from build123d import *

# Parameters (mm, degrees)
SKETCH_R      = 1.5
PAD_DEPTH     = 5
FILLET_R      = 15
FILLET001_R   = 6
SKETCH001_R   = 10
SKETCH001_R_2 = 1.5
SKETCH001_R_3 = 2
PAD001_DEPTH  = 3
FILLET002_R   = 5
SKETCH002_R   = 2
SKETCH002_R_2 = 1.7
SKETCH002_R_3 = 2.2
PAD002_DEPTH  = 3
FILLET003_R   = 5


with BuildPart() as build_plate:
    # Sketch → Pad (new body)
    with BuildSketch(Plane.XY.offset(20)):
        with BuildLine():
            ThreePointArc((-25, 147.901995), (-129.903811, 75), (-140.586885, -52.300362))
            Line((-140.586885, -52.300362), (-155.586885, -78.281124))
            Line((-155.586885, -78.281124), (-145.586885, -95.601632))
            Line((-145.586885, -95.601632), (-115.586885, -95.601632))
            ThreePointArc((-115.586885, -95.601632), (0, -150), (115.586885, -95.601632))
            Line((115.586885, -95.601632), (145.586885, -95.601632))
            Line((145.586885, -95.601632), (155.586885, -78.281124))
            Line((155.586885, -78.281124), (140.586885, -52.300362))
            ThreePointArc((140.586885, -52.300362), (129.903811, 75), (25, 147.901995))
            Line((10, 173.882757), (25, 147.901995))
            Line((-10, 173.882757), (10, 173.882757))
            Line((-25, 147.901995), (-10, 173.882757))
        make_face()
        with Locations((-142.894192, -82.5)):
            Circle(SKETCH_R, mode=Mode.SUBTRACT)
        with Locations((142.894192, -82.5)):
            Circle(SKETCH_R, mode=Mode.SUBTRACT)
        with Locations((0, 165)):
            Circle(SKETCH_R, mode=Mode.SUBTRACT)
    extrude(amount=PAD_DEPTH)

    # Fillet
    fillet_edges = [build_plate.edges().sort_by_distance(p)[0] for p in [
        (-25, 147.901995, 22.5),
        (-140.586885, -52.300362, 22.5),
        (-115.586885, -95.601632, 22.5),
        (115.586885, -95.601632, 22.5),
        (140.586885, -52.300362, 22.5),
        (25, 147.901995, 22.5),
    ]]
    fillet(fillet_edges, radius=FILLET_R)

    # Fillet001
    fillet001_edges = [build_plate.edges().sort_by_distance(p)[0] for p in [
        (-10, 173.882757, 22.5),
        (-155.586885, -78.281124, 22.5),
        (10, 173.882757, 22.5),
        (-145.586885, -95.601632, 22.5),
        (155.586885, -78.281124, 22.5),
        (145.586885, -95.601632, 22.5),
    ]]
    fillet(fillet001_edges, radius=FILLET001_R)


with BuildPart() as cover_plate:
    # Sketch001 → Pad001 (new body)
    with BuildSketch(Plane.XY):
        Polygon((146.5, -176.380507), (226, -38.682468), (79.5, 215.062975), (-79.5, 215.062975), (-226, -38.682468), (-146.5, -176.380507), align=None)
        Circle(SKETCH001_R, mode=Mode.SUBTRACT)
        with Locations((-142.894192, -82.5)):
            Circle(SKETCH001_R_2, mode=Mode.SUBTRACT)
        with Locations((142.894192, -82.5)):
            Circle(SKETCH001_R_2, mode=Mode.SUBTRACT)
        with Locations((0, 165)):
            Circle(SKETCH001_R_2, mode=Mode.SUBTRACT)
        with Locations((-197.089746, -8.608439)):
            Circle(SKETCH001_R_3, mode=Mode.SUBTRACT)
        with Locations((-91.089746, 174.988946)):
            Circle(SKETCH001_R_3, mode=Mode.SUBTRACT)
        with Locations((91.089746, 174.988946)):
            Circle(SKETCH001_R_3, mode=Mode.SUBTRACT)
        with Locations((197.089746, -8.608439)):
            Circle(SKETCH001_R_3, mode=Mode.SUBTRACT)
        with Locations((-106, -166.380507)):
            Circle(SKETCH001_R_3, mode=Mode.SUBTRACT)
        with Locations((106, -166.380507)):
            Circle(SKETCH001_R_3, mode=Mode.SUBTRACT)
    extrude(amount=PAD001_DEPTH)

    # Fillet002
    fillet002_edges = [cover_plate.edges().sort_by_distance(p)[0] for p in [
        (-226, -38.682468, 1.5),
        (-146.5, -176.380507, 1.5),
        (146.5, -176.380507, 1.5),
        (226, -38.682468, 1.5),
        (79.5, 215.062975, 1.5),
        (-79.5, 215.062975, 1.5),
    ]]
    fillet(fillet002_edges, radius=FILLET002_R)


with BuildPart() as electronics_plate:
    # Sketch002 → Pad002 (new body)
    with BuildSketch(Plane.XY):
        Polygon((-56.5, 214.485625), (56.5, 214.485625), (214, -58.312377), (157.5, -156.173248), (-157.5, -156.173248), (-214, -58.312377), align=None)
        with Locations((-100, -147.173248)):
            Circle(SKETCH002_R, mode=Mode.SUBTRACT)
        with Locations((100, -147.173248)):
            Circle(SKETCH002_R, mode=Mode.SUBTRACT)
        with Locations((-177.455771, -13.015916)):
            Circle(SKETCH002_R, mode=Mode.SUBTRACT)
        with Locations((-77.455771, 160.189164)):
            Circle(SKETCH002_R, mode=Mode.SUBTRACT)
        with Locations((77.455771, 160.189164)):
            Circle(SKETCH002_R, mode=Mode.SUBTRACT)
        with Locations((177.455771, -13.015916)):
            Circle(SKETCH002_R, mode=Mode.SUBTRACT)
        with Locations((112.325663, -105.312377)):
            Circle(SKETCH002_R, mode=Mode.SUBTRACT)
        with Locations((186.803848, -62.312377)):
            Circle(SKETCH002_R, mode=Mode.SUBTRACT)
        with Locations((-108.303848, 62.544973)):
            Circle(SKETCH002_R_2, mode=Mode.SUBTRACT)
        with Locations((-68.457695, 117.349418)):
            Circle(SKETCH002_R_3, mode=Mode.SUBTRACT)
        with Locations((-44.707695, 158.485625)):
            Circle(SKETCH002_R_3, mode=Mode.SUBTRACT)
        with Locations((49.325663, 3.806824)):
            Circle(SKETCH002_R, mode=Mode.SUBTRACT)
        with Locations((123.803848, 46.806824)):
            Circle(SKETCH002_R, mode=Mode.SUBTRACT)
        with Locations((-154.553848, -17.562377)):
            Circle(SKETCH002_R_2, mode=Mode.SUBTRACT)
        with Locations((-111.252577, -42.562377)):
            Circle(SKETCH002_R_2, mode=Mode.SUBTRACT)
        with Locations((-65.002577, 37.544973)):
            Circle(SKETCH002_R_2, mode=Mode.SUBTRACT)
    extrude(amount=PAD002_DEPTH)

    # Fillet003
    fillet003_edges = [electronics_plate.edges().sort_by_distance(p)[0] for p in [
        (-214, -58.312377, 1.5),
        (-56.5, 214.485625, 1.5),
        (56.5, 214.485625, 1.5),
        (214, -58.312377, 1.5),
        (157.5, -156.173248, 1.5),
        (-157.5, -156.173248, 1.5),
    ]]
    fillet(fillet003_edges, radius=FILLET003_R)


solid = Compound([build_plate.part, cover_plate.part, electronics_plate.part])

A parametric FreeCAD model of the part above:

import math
import FreeCAD as App
import Part
import Sketcher

V = App.Vector
Q = App.Units.Quantity


def edges_at(feature, points):
    """Names of the edges that pass closest to the given points."""
    edges = feature.Shape.Edges
    near = lambda p: min(range(len(edges)), key=lambda i: edges[i].distToShape(Part.Vertex(*p))[0])
    return sorted({f"Edge{near(p) + 1}" for p in points})

doc = App.newDocument("Part")
body = doc.addObject("PartDesign::Body", "Body")

sketch1 = doc.addObject("Sketcher::SketchObject", "Sketch")
body.addObject(sketch1)
sketch1.AttachmentSupport = (doc.XY_Plane, [""])
sketch1.MapMode = "FlatFace"
sketch1.AttachmentOffset = App.Placement(V(0, 0, 20), App.Rotation())
sketch1.addGeometry(Part.ArcOfCircle(Part.Circle(V(0, 0, 0), V(0, 0, 1), 150), math.radians(100), math.radians(200)), False)
sketch1.addGeometry(Part.LineSegment(V(-140.6, -52.3, 0), V(-155.6, -78.3, 0)), False)
sketch1.addGeometry(Part.LineSegment(V(-155.6, -78.3, 0), V(-145.6, -95.6, 0)), False)
sketch1.addGeometry(Part.LineSegment(V(-145.6, -95.6, 0), V(-115.6, -95.6, 0)), False)
sketch1.addGeometry(Part.ArcOfCircle(Part.Circle(V(0, 0, 0), V(0, 0, 1), 150), math.radians(-140), math.radians(-40)), False)
sketch1.addGeometry(Part.LineSegment(V(115.6, -95.6, 0), V(145.6, -95.6, 0)), False)
sketch1.addGeometry(Part.LineSegment(V(145.6, -95.6, 0), V(155.6, -78.3, 0)), False)
sketch1.addGeometry(Part.LineSegment(V(155.6, -78.3, 0), V(140.6, -52.3, 0)), False)
sketch1.addGeometry(Part.ArcOfCircle(Part.Circle(V(0, 0, 0), V(0, 0, 1), 150), math.radians(-20), math.radians(80)), False)
sketch1.addGeometry(Part.LineSegment(V(25, 147.9, 0), V(10, 173.9, 0)), False)
sketch1.addGeometry(Part.LineSegment(V(10, 173.9, 0), V(-10, 173.9, 0)), False)
sketch1.addGeometry(Part.LineSegment(V(-10, 173.9, 0), V(-25, 147.9, 0)), False)
sketch1.addGeometry(Part.Circle(V(-142.9, -82.5, 0), V(0, 0, 1), 1.5), False)
sketch1.addGeometry(Part.Circle(V(142.9, -82.5, 0), V(0, 0, 1), 1.5), False)
sketch1.addGeometry(Part.Circle(V(0, 165, 0), V(0, 0, 1), 1.5), False)
sketch1.addConstraint(Sketcher.Constraint("Coincident", 0, 2, 1, 1))
sketch1.addConstraint(Sketcher.Constraint("Coincident", 1, 2, 2, 1))
sketch1.addConstraint(Sketcher.Constraint("Coincident", 2, 2, 3, 1))
sketch1.addConstraint(Sketcher.Constraint("Coincident", 3, 2, 4, 1))
sketch1.addConstraint(Sketcher.Constraint("Coincident", 4, 2, 5, 1))
sketch1.addConstraint(Sketcher.Constraint("Coincident", 5, 2, 6, 1))
sketch1.addConstraint(Sketcher.Constraint("Coincident", 6, 2, 7, 1))
sketch1.addConstraint(Sketcher.Constraint("Coincident", 7, 2, 8, 1))
sketch1.addConstraint(Sketcher.Constraint("Coincident", 8, 2, 9, 1))
sketch1.addConstraint(Sketcher.Constraint("Coincident", 9, 2, 10, 1))
sketch1.addConstraint(Sketcher.Constraint("Coincident", 10, 2, 11, 1))
sketch1.addConstraint(Sketcher.Constraint("Coincident", 11, 2, 0, 1))
sketch1.addConstraint(Sketcher.Constraint("Horizontal", 3))
sketch1.addConstraint(Sketcher.Constraint("Horizontal", 5))
sketch1.addConstraint(Sketcher.Constraint("Horizontal", 10))
sketch1.addConstraint(Sketcher.Constraint("Coincident", 0, 3, -1, 1))
sketch1.addConstraint(Sketcher.Constraint("Coincident", 4, 3, -1, 1))
sketch1.addConstraint(Sketcher.Constraint("Coincident", 8, 3, -1, 1))
sketch1.addConstraint(Sketcher.Constraint("Equal", 0, 4))
sketch1.addConstraint(Sketcher.Constraint("Equal", 4, 8))
sketch1.addConstraint(Sketcher.Constraint("Equal", 12, 13))
sketch1.addConstraint(Sketcher.Constraint("Equal", 13, 14))
sketch1.addConstraint(Sketcher.Constraint("Symmetric", 12, 3, 13, 3, -2))
sketch1.addConstraint(Sketcher.Constraint("Symmetric", 2, 2, 5, 2, -2))
sketch1.addConstraint(Sketcher.Constraint("Symmetric", 1, 2, 6, 2, -2))
sketch1.addConstraint(Sketcher.Constraint("PointOnObject", 14, 3, -2))
sketch1.addConstraint(Sketcher.Constraint("Parallel", 1, 6))
sketch1.addConstraint(Sketcher.Constraint("Parallel", 2, 7))
sketch1.addConstraint(Sketcher.Constraint("Parallel", 7, 9))
sketch1.addConstraint(Sketcher.Constraint("Parallel", 6, 11))
sketch1.addConstraint(Sketcher.Constraint("Horizontal", 8, 2, 11, 2))
sketch1.addConstraint(Sketcher.Constraint("Equal", 7, 9))
sketch1.addConstraint(Sketcher.Constraint("Diameter", 12, 3.0))
sketch1.addConstraint(Sketcher.Constraint("Radius", 0, 150.0))
sketch1.addConstraint(Sketcher.Constraint("DistanceX", 3, 1, 3, 2, 30.0))
sketch1.addConstraint(Sketcher.Constraint("DistanceX", 10, 2, 10, 1, 20.0))
sketch1.addConstraint(Sketcher.Constraint("Angle", 1, Q("-120 deg")))
sketch1.addConstraint(Sketcher.Constraint("Distance", 1, 30.0))
sketch1.addConstraint(Sketcher.Constraint("Distance", 2, 20.0))
sketch1.addConstraint(Sketcher.Constraint("DistanceY", -1, 1, 14, 3, 165.0))
sketch1.addConstraint(Sketcher.Constraint("DistanceY", 12, 3, -1, 1, 82.5))
sketch1.addConstraint(Sketcher.Constraint("DistanceX", 12, 3, -1, 1, 142.894192))
pad1 = doc.addObject("PartDesign::Pad", "Pad")
body.addObject(pad1)
pad1.Profile = sketch1
pad1.Length = 5
doc.recompute()

fillet = doc.addObject("PartDesign::Fillet", "Fillet")
body.addObject(fillet)
fillet.Base = (pad1, edges_at(pad1, [
    (-25, 147.902, 22.5),
    (-140.587, -52.3, 22.5),
    (-115.587, -95.602, 22.5),
    (115.587, -95.602, 22.5),
    (140.587, -52.3, 22.5),
    (25, 147.902, 22.5),
]))
fillet.Radius = 15
doc.recompute()

fillet2 = doc.addObject("PartDesign::Fillet", "Fillet001")
body.addObject(fillet2)
fillet2.Base = (fillet, edges_at(fillet, [
    (-10, 173.883, 22.5),
    (-155.587, -78.281, 22.5),
    (10, 173.883, 22.5),
    (-145.587, -95.602, 22.5),
    (155.587, -78.281, 22.5),
    (145.587, -95.602, 22.5),
]))
fillet2.Radius = 6
body2 = doc.addObject("PartDesign::Body", "Body001")

sketch2 = doc.addObject("Sketcher::SketchObject", "Sketch001")
body2.addObject(sketch2)
sketch2.AttachmentSupport = (doc.getObject("XY_Plane001"), [""])
sketch2.MapMode = "FlatFace"
sketch2.addGeometry(Part.LineSegment(V(146.5, -176.4, 0), V(226, -38.7, 0)), False)
sketch2.addGeometry(Part.LineSegment(V(226, -38.7, 0), V(79.5, 215.1, 0)), False)
sketch2.addGeometry(Part.LineSegment(V(79.5, 215.1, 0), V(-79.5, 215.1, 0)), False)
sketch2.addGeometry(Part.LineSegment(V(-79.5, 215.1, 0), V(-226, -38.7, 0)), False)
sketch2.addGeometry(Part.LineSegment(V(-226, -38.7, 0), V(-146.5, -176.4, 0)), False)
sketch2.addGeometry(Part.LineSegment(V(-146.5, -176.4, 0), V(146.5, -176.4, 0)), False)
sketch2.addGeometry(Part.Circle(V(-106, -166.4, 0), V(0, 0, 1), 2), False)
sketch2.addGeometry(Part.Circle(V(-142.9, -82.5, 0), V(0, 0, 1), 1.5), False)
sketch2.addGeometry(Part.Circle(V(-197.1, -8.6, 0), V(0, 0, 1), 2), False)
sketch2.addGeometry(Part.Circle(V(0, 0, 0), V(0, 0, 1), 10), False)
sketch2.addGeometry(Part.Circle(V(106, -166.4, 0), V(0, 0, 1), 2), False)
sketch2.addGeometry(Part.Circle(V(142.9, -82.5, 0), V(0, 0, 1), 1.5), False)
sketch2.addGeometry(Part.Circle(V(197.1, -8.6, 0), V(0, 0, 1), 2), False)
sketch2.addGeometry(Part.Circle(V(-91.1, 175, 0), V(0, 0, 1), 2), False)
sketch2.addGeometry(Part.Circle(V(0, 165, 0), V(0, 0, 1), 1.5), False)
sketch2.addGeometry(Part.Circle(V(91.1, 175, 0), V(0, 0, 1), 2), False)
sketch2.addConstraint(Sketcher.Constraint("Coincident", 0, 2, 1, 1))
sketch2.addConstraint(Sketcher.Constraint("Coincident", 1, 2, 2, 1))
sketch2.addConstraint(Sketcher.Constraint("Coincident", 2, 2, 3, 1))
sketch2.addConstraint(Sketcher.Constraint("Coincident", 3, 2, 4, 1))
sketch2.addConstraint(Sketcher.Constraint("Coincident", 4, 2, 5, 1))
sketch2.addConstraint(Sketcher.Constraint("Coincident", 5, 2, 0, 1))
sketch2.addConstraint(Sketcher.Constraint("Horizontal", 2))
sketch2.addConstraint(Sketcher.Constraint("Horizontal", 5))
sketch2.addConstraint(Sketcher.Constraint("Coincident", 9, 3, -1, 1))
sketch2.addConstraint(Sketcher.Constraint("Equal", 6, 8))
sketch2.addConstraint(Sketcher.Constraint("Equal", 8, 10))
sketch2.addConstraint(Sketcher.Constraint("Equal", 7, 11))
sketch2.addConstraint(Sketcher.Constraint("Equal", 10, 12))
sketch2.addConstraint(Sketcher.Constraint("Equal", 12, 13))
sketch2.addConstraint(Sketcher.Constraint("Equal", 11, 14))
sketch2.addConstraint(Sketcher.Constraint("Equal", 13, 15))
sketch2.addConstraint(Sketcher.Constraint("Symmetric", 6, 3, 10, 3, -2))
sketch2.addConstraint(Sketcher.Constraint("Symmetric", 7, 3, 11, 3, -2))
sketch2.addConstraint(Sketcher.Constraint("Symmetric", 8, 3, 12, 3, -2))
sketch2.addConstraint(Sketcher.Constraint("Symmetric", 13, 3, 15, 3, -2))
sketch2.addConstraint(Sketcher.Constraint("Symmetric", 0, 2, 3, 2, -2))
sketch2.addConstraint(Sketcher.Constraint("PointOnObject", 14, 3, -2))
sketch2.addConstraint(Sketcher.Constraint("Parallel", 0, 3))
sketch2.addConstraint(Sketcher.Constraint("Parallel", 1, 4))
sketch2.addConstraint(Sketcher.Constraint("Equal", 1, 3))
sketch2.addConstraint(Sketcher.Constraint("Diameter", 6, 4.0))
sketch2.addConstraint(Sketcher.Constraint("Diameter", 7, 3.0))
sketch2.addConstraint(Sketcher.Constraint("Diameter", 9, 20.0))
sketch2.addConstraint(Sketcher.Constraint("DistanceX", 2, 2, 2, 1, 159.0))
sketch2.addConstraint(Sketcher.Constraint("DistanceX", 5, 1, 5, 2, 293.0))
sketch2.addConstraint(Sketcher.Constraint("Angle", 0, Q("60 deg")))
sketch2.addConstraint(Sketcher.Constraint("Distance", 0, 159.0))
sketch2.addConstraint(Sketcher.Constraint("DistanceX", 6, 3, -1, 1, 106.0))
sketch2.addConstraint(Sketcher.Constraint("DistanceY", -1, 1, 14, 3, 165.0))
sketch2.addConstraint(Sketcher.Constraint("DistanceX", 8, 3, 13, 3, 106.0))
sketch2.addConstraint(Sketcher.Constraint("DistanceY", 4, 2, 6, 3, 10.0))
sketch2.addConstraint(Sketcher.Constraint("DistanceY", 7, 3, -1, 1, 82.5))
sketch2.addConstraint(Sketcher.Constraint("DistanceX", 7, 3, -1, 1, 142.894192))
sketch2.addConstraint(Sketcher.Constraint("DistanceY", 8, 3, -1, 1, 8.608439))
sketch2.addConstraint(Sketcher.Constraint("DistanceX", 13, 3, 12, 3, 288.179492))
sketch2.addConstraint(Sketcher.Constraint("DistanceY", 0, 2, 12, 3, 30.074029))
sketch2.addConstraint(Sketcher.Constraint("DistanceY", 15, 3, 1, 2, 40.074029))
pad2 = doc.addObject("PartDesign::Pad", "Pad001")
body2.addObject(pad2)
pad2.Profile = sketch2
pad2.Length = 3
doc.recompute()

fillet3 = doc.addObject("PartDesign::Fillet", "Fillet002")
body2.addObject(fillet3)
fillet3.Base = (pad2, edges_at(pad2, [
    (-226, -38.682, 1.5),
    (-146.5, -176.381, 1.5),
    (146.5, -176.381, 1.5),
    (226, -38.682, 1.5),
    (79.5, 215.063, 1.5),
    (-79.5, 215.063, 1.5),
]))
fillet3.Radius = 5
body3 = doc.addObject("PartDesign::Body", "Body002")

sketch3 = doc.addObject("Sketcher::SketchObject", "Sketch002")
body3.addObject(sketch3)
sketch3.AttachmentSupport = (doc.getObject("XY_Plane002"), [""])
sketch3.MapMode = "FlatFace"
sketch3.addGeometry(Part.LineSegment(V(56.5, 214.5, 0), V(-56.5, 214.5, 0)), False)
sketch3.addGeometry(Part.LineSegment(V(-56.5, 214.5, 0), V(-214, -58.3, 0)), False)
sketch3.addGeometry(Part.LineSegment(V(-214, -58.3, 0), V(-157.5, -156.2, 0)), False)
sketch3.addGeometry(Part.LineSegment(V(-157.5, -156.2, 0), V(157.5, -156.2, 0)), False)
sketch3.addGeometry(Part.LineSegment(V(157.5, -156.2, 0), V(214, -58.3, 0)), False)
sketch3.addGeometry(Part.LineSegment(V(214, -58.3, 0), V(56.5, 214.5, 0)), False)
sketch3.addGeometry(Part.Circle(V(100, -147.2, 0), V(0, 0, 1), 2), False)
sketch3.addGeometry(Part.Circle(V(112.3, -105.3, 0), V(0, 0, 1), 2), False)
sketch3.addGeometry(Part.Circle(V(186.8, -62.3, 0), V(0, 0, 1), 2), False)
sketch3.addGeometry(Part.Circle(V(177.5, -13, 0), V(0, 0, 1), 2), False)
sketch3.addGeometry(Part.Circle(V(49.3, 3.8, 0), V(0, 0, 1), 2), False)
sketch3.addGeometry(Part.Circle(V(-100, -147.2, 0), V(0, 0, 1), 2), False)
sketch3.addGeometry(Part.Circle(V(-111.3, -42.6, 0), V(0, 0, 1), 1.7), False)
sketch3.addGeometry(Part.Circle(V(-154.6, -17.6, 0), V(0, 0, 1), 1.7), False)
sketch3.addGeometry(Part.Circle(V(-177.5, -13, 0), V(0, 0, 1), 2), False)
sketch3.addGeometry(Part.Circle(V(123.8, 46.8, 0), V(0, 0, 1), 2), False)
sketch3.addGeometry(Part.Circle(V(77.5, 160.2, 0), V(0, 0, 1), 2), False)
sketch3.addGeometry(Part.Circle(V(-65, 37.5, 0), V(0, 0, 1), 1.7), False)
sketch3.addGeometry(Part.Circle(V(-108.3, 62.5, 0), V(0, 0, 1), 1.7), False)
sketch3.addGeometry(Part.Circle(V(-68.5, 117.3, 0), V(0, 0, 1), 2.2), False)
sketch3.addGeometry(Part.Circle(V(-44.7, 158.5, 0), V(0, 0, 1), 2.2), False)
sketch3.addGeometry(Part.Circle(V(-77.5, 160.2, 0), V(0, 0, 1), 2), False)
sketch3.addConstraint(Sketcher.Constraint("Coincident", 0, 2, 1, 1))
sketch3.addConstraint(Sketcher.Constraint("Coincident", 1, 2, 2, 1))
sketch3.addConstraint(Sketcher.Constraint("Coincident", 2, 2, 3, 1))
sketch3.addConstraint(Sketcher.Constraint("Coincident", 3, 2, 4, 1))
sketch3.addConstraint(Sketcher.Constraint("Coincident", 4, 2, 5, 1))
sketch3.addConstraint(Sketcher.Constraint("Coincident", 5, 2, 0, 1))
sketch3.addConstraint(Sketcher.Constraint("Horizontal", 0))
sketch3.addConstraint(Sketcher.Constraint("Horizontal", 3))
sketch3.addConstraint(Sketcher.Constraint("Equal", 6, 7))
sketch3.addConstraint(Sketcher.Constraint("Equal", 7, 8))
sketch3.addConstraint(Sketcher.Constraint("Equal", 8, 9))
sketch3.addConstraint(Sketcher.Constraint("Equal", 9, 10))
sketch3.addConstraint(Sketcher.Constraint("Equal", 10, 11))
sketch3.addConstraint(Sketcher.Constraint("Equal", 12, 13))
sketch3.addConstraint(Sketcher.Constraint("Equal", 11, 14))
sketch3.addConstraint(Sketcher.Constraint("Equal", 14, 15))
sketch3.addConstraint(Sketcher.Constraint("Equal", 15, 16))
sketch3.addConstraint(Sketcher.Constraint("Equal", 13, 17))
sketch3.addConstraint(Sketcher.Constraint("Equal", 17, 18))
sketch3.addConstraint(Sketcher.Constraint("Equal", 19, 20))
sketch3.addConstraint(Sketcher.Constraint("Equal", 16, 21))
sketch3.addConstraint(Sketcher.Constraint("Symmetric", 6, 3, 11, 3, -2))
sketch3.addConstraint(Sketcher.Constraint("Symmetric", 9, 3, 14, 3, -2))
sketch3.addConstraint(Sketcher.Constraint("Symmetric", 16, 3, 21, 3, -2))
sketch3.addConstraint(Sketcher.Constraint("Symmetric", 1, 2, 4, 2, -2))
sketch3.addConstraint(Sketcher.Constraint("Parallel", 1, 4))
sketch3.addConstraint(Sketcher.Constraint("Parallel", 2, 5))
sketch3.addConstraint(Sketcher.Constraint("Equal", 2, 4))
sketch3.addConstraint(Sketcher.Constraint("Diameter", 6, 4.0))
sketch3.addConstraint(Sketcher.Constraint("Diameter", 12, 3.4))
sketch3.addConstraint(Sketcher.Constraint("Diameter", 19, 4.4))
sketch3.addConstraint(Sketcher.Constraint("DistanceX", 0, 2, 0, 1, 113.0))
sketch3.addConstraint(Sketcher.Constraint("DistanceX", 3, 1, 3, 2, 315.0))
sketch3.addConstraint(Sketcher.Constraint("Angle", 1, Q("-120 deg")))
sketch3.addConstraint(Sketcher.Constraint("Distance", 1, 315.0))
sketch3.addConstraint(Sketcher.Constraint("DistanceX", -1, 1, 6, 3, 100.0))
sketch3.addConstraint(Sketcher.Constraint("DistanceY", 7, 3, 8, 3, 43.0))
sketch3.addConstraint(Sketcher.Constraint("DistanceX", 10, 3, 7, 3, 63.0))
sketch3.addConstraint(Sketcher.Constraint("DistanceY", 12, 3, 13, 3, 25.0))
sketch3.addConstraint(Sketcher.Constraint("DistanceY", 10, 3, 15, 3, 43.0))
sketch3.addConstraint(Sketcher.Constraint("DistanceX", 15, 3, 8, 3, 63.0))
sketch3.addConstraint(Sketcher.Constraint("DistanceX", 16, 3, 9, 3, 100.0))
sketch3.addConstraint(Sketcher.Constraint("DistanceY", 17, 3, 18, 3, 25.0))
sketch3.addConstraint(Sketcher.Constraint("DistanceY", 20, 3, 0, 2, 56.0))
sketch3.addConstraint(Sketcher.Constraint("DistanceY", 2, 2, 11, 3, 9.0))
sketch3.addConstraint(Sketcher.Constraint("DistanceY", 8, 3, 4, 2, 4.0))
sketch3.addConstraint(Sketcher.Constraint("DistanceY", 7, 3, 12, 3, 62.75))
sketch3.addConstraint(Sketcher.Constraint("DistanceX", 12, 3, 17, 3, 46.25))
sketch3.addConstraint(Sketcher.Constraint("DistanceX", 13, 3, 18, 3, 46.25))
sketch3.addConstraint(Sketcher.Constraint("DistanceX", 19, 3, 20, 3, 23.75))
sketch3.addConstraint(Sketcher.Constraint("DistanceY", 7, 3, 10, 3, 109.119201))
sketch3.addConstraint(Sketcher.Constraint("DistanceY", 6, 3, -1, 1, 147.173248))
sketch3.addConstraint(Sketcher.Constraint("DistanceX", -1, 1, 9, 3, 177.455771))
sketch3.addConstraint(Sketcher.Constraint("DistanceX", -1, 1, 15, 3, 123.803848))
sketch3.addConstraint(Sketcher.Constraint("DistanceX", 18, 3, -1, 1, 108.303848))
sketch3.addConstraint(Sketcher.Constraint("DistanceY", -1, 1, 19, 3, 117.349418))
sketch3.addConstraint(Sketcher.Constraint("DistanceY", 8, 3, 9, 3, 49.296461))
sketch3.addConstraint(Sketcher.Constraint("DistanceX", 10, 3, 9, 3, 128.130108))
sketch3.addConstraint(Sketcher.Constraint("DistanceX", 12, 3, 10, 3, 160.57824))
sketch3.addConstraint(Sketcher.Constraint("DistanceY", 15, 3, 16, 3, 113.38234))
sketch3.addConstraint(Sketcher.Constraint("DistanceY", 12, 3, 17, 3, 80.10735))
sketch3.addConstraint(Sketcher.Constraint("DistanceX", 19, 3, -1, 1, 68.457695))
pad3 = doc.addObject("PartDesign::Pad", "Pad002")
body3.addObject(pad3)
pad3.Profile = sketch3
pad3.Length = 3
doc.recompute()

fillet4 = doc.addObject("PartDesign::Fillet", "Fillet003")
body3.addObject(fillet4)
fillet4.Base = (pad3, edges_at(pad3, [
    (-214, -58.312, 1.5),
    (-56.5, 214.486, 1.5),
    (56.5, 214.486, 1.5),
    (214, -58.312, 1.5),
    (157.5, -156.173, 1.5),
    (-157.5, -156.173, 1.5),
]))
fillet4.Radius = 5

doc.recompute()
